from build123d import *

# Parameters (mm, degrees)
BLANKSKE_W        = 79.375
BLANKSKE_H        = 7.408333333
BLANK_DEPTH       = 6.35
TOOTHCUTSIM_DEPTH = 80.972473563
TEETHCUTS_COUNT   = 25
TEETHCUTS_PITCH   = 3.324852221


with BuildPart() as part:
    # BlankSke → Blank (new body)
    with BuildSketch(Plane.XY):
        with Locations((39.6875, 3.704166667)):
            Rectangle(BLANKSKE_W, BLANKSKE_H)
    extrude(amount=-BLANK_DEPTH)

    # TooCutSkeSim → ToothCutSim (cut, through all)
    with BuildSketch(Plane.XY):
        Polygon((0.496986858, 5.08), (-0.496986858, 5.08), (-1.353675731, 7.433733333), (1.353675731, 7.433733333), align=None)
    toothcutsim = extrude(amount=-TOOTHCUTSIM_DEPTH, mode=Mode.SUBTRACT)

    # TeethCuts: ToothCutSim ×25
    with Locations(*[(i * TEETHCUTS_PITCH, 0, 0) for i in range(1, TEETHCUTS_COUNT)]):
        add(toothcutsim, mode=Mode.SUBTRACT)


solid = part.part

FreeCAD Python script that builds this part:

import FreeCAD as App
import Part
import Sketcher

V = App.Vector
Q = App.Units.Quantity

doc = App.newDocument("Part")
params = doc.addObject("Spreadsheet::Sheet", "Params")
for row, (alias, value) in enumerate([
    ("sketch1_width", "3.125 in"),
    ("pad1_length", "0.25 in"),
    ("linearpattern_pitch", "3.324852 mm"),
], start=1):
    params.set(f"A{row}", alias)
    params.set(f"B{row}", "=" + value)
    params.setAlias(f"B{row}", alias)

body = doc.addObject("PartDesign::Body", "Body")

# Sketch on XY plane
sketch1 = body.newObject("Sketcher::SketchObject", "Sketch")
sketch1.AttachmentSupport = (doc.getObject("XY_Plane"), [""])
sketch1.MapMode = "FlatFace"
sketch1.addGeometry(Part.LineSegment(V(0, 7, 0), V(0, 0, 0)), False)
sketch1.addGeometry(Part.LineSegment(V(0, 0, 0), V(79, 0, 0)), False)
sketch1.addGeometry(Part.LineSegment(V(79, 0, 0), V(79, 7, 0)), False)
sketch1.addGeometry(Part.LineSegment(V(79, 7, 0), V(0, 7, 0)), False)
sketch1.addConstraint(Sketcher.Constraint("Coincident", 0, 2, 1, 1))
sketch1.addConstraint(Sketcher.Constraint("Coincident", 1, 2, 2, 1))
sketch1.addConstraint(Sketcher.Constraint("Coincident", 2, 2, 3, 1))
sketch1.addConstraint(Sketcher.Constraint("Coincident", 3, 2, 0, 1))
sketch1.addConstraint(Sketcher.Constraint("Vertical", 0))
sketch1.addConstraint(Sketcher.Constraint("Horizontal", 1))
sketch1.addConstraint(Sketcher.Constraint("Vertical", 2))
sketch1.addConstraint(Sketcher.Constraint("Horizontal", 3))
sketch1.addConstraint(Sketcher.Constraint("Coincident", 0, 2, -1, 1))
sketch1.addConstraint(Sketcher.Constraint("DistanceX", 1, 1, 1, 2, Q("3.125 in")))
sketch1.addConstraint(Sketcher.Constraint("DistanceY", 0, 2, 0, 1, 7.408333))
sketch1.setExpression("Constraints[9]", "Params.sketch1_width")
pad1 = body.newObject("PartDesign::Pad", "Pad")
pad1.Profile = sketch1
pad1.setExpression("Length", "Params.pad1_length")
pad1.Reversed = True

# Sketch on XY plane
sketch2 = body.newObject("Sketcher::SketchObject", "Sketch001")
sketch2.AttachmentSupport = (doc.getObject("XY_Plane"), [""])
sketch2.MapMode = "FlatFace"
sketch2.addGeometry(Part.LineSegment(V(-0.5, 5.1, 0), V(0.5, 5.1, 0)), False)
sketch2.addGeometry(Part.LineSegment(V(0.5, 5.1, 0), V(1.4, 7.4, 0)), False)
sketch2.addGeometry(Part.LineSegment(V(1.4, 7.4, 0), V(-1.4, 7.4, 0)), False)
sketch2.addGeometry(Part.LineSegment(V(-1.4, 7.4, 0), V(-0.5, 5.1, 0)), False)
sketch2.addConstraint(Sketcher.Constraint("Coincident", 0, 2, 1, 1))
sketch2.addConstraint(Sketcher.Constraint("Coincident", 1, 2, 2, 1))
sketch2.addConstraint(Sketcher.Constraint("Coincident", 2, 2, 3, 1))
sketch2.addConstraint(Sketcher.Constraint("Coincident", 3, 2, 0, 1))
sketch2.addConstraint(Sketcher.Constraint("Horizontal", 0))
sketch2.addConstraint(Sketcher.Constraint("Horizontal", 2))
sketch2.addConstraint(Sketcher.Constraint("Equal", 1, 3))
sketch2.addConstraint(Sketcher.Constraint("Angle", 1, Q("70 deg")))
sketch2.addConstraint(Sketcher.Constraint("DistanceY", -1, 1, 0, 2, Q("0.2 in")))
sketch2.addConstraint(Sketcher.Constraint("DistanceX", 2, 2, 2, 1, 2.707351))
sketch2.addConstraint(Sketcher.Constraint("Distance", 1, 2.504791))
sketch2.addConstraint(Sketcher.Constraint("DistanceX", -1, 1, 0, 2, 0.496987))
pocket1 = body.newObject("PartDesign::Pocket", "Pocket")
pocket1.Profile = sketch2
pocket1.Type = "ThroughAll"
doc.recompute()

linearpattern = body.newObject("PartDesign::LinearPattern", "LinearPattern")
linearpattern.Originals = [pocket1]
linearpattern.Direction = (doc.getObject("X_Axis"), [""])
linearpattern.Mode = "offset"
linearpattern.setExpression("Offset", "Params.linearpattern_pitch")
linearpattern.Occurrences = 25
body.Tip = linearpattern

doc.recompute()
